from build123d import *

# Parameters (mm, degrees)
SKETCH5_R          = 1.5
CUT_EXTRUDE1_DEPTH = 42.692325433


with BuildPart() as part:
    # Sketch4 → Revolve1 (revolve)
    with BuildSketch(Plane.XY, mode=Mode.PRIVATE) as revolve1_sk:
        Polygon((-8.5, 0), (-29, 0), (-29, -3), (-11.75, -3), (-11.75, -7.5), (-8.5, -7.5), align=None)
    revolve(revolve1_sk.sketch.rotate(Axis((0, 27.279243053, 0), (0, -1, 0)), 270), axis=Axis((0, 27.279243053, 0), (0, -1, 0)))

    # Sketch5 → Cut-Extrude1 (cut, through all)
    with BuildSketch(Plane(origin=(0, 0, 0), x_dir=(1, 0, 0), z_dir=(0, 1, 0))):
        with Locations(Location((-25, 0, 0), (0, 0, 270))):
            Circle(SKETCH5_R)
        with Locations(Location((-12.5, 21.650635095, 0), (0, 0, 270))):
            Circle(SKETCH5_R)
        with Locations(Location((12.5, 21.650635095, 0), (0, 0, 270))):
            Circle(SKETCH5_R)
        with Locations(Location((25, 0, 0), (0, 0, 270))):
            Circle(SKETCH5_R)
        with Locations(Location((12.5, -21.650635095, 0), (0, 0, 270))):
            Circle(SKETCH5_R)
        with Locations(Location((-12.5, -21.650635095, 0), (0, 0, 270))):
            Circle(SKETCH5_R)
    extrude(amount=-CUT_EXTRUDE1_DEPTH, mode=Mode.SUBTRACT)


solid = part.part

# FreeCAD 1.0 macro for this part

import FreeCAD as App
import Part
import Sketcher
Q = App.Units.Quantity


def add_polygon(sketch, points):
    """Adds a closed chain of lines whose ends are joined by coincident constraints."""
    first, n = sketch.GeometryCount, len(points)
    for a, b in zip(points, points[1:] + points[:1]):
        sketch.addGeometry(Part.LineSegment(App.Vector(*a, 0), App.Vector(*b, 0)), False)
    for i in range(n):
        sketch.addConstraint(Sketcher.Constraint("Coincident", first + i, 2, first + (i + 1) % n, 1))

doc = App.newDocument("Part")
params = doc.addObject("Spreadsheet::Sheet", "Params")
for row, (alias, value) in enumerate([
    ("sketch1_height", "3 mm"),
    ("sketch1_width", "20.5 mm"),
    ("sketch1_height2", "4.5 mm"),
    ("sketch1_width2", "17.25 mm"),
    ("revolution_angle", "360 deg"),
    ("sketch2_diameter", "3 mm"),
], start=1):
    params.set(f"A{row}", alias)
    params.set(f"B{row}", "=" + value)
    params.setAlias(f"B{row}", alias)

body = doc.addObject("PartDesign::Body", "Body")

# Sketch on XY plane
sketch1 = body.newObject("Sketcher::SketchObject", "Sketch")
sketch1.AttachmentSupport = (doc.getObject("XY_Plane"), [""])
sketch1.MapMode = "FlatFace"
add_polygon(sketch1, [(-8.5, 0), (-29, 0), (-29, -3), (-11.8, -3), (-11.8, -7.5), (-8.5, -7.5)])  # lines 0-5
sketch1.addConstraint([
    Sketcher.Constraint("Horizontal", 0),
    Sketcher.Constraint("Vertical", 1),
    Sketcher.Constraint("Horizontal", 2),
    Sketcher.Constraint("Vertical", 3),
    Sketcher.Constraint("Horizontal", 4),
    Sketcher.Constraint("Vertical", 5),
    Sketcher.Constraint("PointOnObject", 0, 2, -1),
    Sketcher.Constraint("DistanceY", 1, 2, 1, 1, Q("3 mm")),
    Sketcher.Constraint("DistanceX", 0, 2, 0, 1, Q("20.5 mm")),
    Sketcher.Constraint("DistanceY", 3, 2, 3, 1, Q("4.5 mm")),
    Sketcher.Constraint("DistanceX", 0, 2, -1, 1, Q("29 mm")),
    Sketcher.Constraint("DistanceX", 2, 1, 2, 2, Q("17.25 mm")),
])
sketch1.setExpression("Constraints[13]", "Params.sketch1_height")
sketch1.setExpression("Constraints[14]", "Params.sketch1_width")
sketch1.setExpression("Constraints[15]", "Params.sketch1_height2")
sketch1.setExpression("Constraints[17]", "Params.sketch1_width2")
revolution = body.newObject("PartDesign::Revolution", "Revolution")
revolution.Profile = sketch1
revolution.ReferenceAxis = (sketch1, ["V_Axis"])
revolution.setExpression("Angle", "Params.revolution_angle")

# Sketch on XZ plane
sketch2 = body.newObject("Sketcher::SketchObject", "Sketch001")
sketch2.AttachmentSupport = (doc.getObject("XZ_Plane"), [""])
sketch2.MapMode = "FlatFace"
sketch2.addGeometry([
    Part.Circle(App.Vector(-25, 0, 0), App.Vector(0, 0, 1), 1.5),  # 0
    Part.Circle(App.Vector(-12.5, -21.7, 0), App.Vector(0, 0, 1), 1.5),  # 1
    Part.Circle(App.Vector(12.5, -21.7, 0), App.Vector(0, 0, 1), 1.5),  # 2
    Part.Circle(App.Vector(25, 0, 0), App.Vector(0, 0, 1), 1.5),  # 3
    Part.Circle(App.Vector(12.5, 21.7, 0), App.Vector(0, 0, 1), 1.5),  # 4
    Part.Circle(App.Vector(-12.5, 21.7, 0), App.Vector(0, 0, 1), 1.5),  # 5
], False)
sketch2.addConstraint([
    Sketcher.Constraint("Equal", 0, 1),
    Sketcher.Constraint("Equal", 1, 2),
    Sketcher.Constraint("Equal", 2, 3),
    Sketcher.Constraint("Equal", 3, 4),
    Sketcher.Constraint("Equal", 4, 5),
    Sketcher.Constraint("Symmetric", 0, 3, 3, 3, -1, 1),
    Sketcher.Constraint("Symmetric", 1, 3, 4, 3, -1, 1),
    Sketcher.Constraint("Symmetric", 2, 3, 5, 3, -1, 1),
    Sketcher.Constraint("Symmetric", 1, 3, 2, 3, -2),
    Sketcher.Constraint("PointOnObject", 0, 3, -1),
    Sketcher.Constraint("Diameter", 0, Q("3 mm")),
    Sketcher.Constraint("DistanceX", 0, 3, -1, 1, Q("25 mm")),
    Sketcher.Constraint("DistanceX", 1, 3, 2, 3, Q("25 mm")),
    Sketcher.Constraint("DistanceY", 2, 3, 4, 3, Q("43.30127 mm")),
])
sketch2.setExpression("Constraints[10]", "Params.sketch2_diameter")
pocket1 = body.newObject("PartDesign::Pocket", "Pocket")
pocket1.Profile = sketch2
pocket1.Type = "ThroughAll"
pocket1.Reversed = True

doc.recompute()
